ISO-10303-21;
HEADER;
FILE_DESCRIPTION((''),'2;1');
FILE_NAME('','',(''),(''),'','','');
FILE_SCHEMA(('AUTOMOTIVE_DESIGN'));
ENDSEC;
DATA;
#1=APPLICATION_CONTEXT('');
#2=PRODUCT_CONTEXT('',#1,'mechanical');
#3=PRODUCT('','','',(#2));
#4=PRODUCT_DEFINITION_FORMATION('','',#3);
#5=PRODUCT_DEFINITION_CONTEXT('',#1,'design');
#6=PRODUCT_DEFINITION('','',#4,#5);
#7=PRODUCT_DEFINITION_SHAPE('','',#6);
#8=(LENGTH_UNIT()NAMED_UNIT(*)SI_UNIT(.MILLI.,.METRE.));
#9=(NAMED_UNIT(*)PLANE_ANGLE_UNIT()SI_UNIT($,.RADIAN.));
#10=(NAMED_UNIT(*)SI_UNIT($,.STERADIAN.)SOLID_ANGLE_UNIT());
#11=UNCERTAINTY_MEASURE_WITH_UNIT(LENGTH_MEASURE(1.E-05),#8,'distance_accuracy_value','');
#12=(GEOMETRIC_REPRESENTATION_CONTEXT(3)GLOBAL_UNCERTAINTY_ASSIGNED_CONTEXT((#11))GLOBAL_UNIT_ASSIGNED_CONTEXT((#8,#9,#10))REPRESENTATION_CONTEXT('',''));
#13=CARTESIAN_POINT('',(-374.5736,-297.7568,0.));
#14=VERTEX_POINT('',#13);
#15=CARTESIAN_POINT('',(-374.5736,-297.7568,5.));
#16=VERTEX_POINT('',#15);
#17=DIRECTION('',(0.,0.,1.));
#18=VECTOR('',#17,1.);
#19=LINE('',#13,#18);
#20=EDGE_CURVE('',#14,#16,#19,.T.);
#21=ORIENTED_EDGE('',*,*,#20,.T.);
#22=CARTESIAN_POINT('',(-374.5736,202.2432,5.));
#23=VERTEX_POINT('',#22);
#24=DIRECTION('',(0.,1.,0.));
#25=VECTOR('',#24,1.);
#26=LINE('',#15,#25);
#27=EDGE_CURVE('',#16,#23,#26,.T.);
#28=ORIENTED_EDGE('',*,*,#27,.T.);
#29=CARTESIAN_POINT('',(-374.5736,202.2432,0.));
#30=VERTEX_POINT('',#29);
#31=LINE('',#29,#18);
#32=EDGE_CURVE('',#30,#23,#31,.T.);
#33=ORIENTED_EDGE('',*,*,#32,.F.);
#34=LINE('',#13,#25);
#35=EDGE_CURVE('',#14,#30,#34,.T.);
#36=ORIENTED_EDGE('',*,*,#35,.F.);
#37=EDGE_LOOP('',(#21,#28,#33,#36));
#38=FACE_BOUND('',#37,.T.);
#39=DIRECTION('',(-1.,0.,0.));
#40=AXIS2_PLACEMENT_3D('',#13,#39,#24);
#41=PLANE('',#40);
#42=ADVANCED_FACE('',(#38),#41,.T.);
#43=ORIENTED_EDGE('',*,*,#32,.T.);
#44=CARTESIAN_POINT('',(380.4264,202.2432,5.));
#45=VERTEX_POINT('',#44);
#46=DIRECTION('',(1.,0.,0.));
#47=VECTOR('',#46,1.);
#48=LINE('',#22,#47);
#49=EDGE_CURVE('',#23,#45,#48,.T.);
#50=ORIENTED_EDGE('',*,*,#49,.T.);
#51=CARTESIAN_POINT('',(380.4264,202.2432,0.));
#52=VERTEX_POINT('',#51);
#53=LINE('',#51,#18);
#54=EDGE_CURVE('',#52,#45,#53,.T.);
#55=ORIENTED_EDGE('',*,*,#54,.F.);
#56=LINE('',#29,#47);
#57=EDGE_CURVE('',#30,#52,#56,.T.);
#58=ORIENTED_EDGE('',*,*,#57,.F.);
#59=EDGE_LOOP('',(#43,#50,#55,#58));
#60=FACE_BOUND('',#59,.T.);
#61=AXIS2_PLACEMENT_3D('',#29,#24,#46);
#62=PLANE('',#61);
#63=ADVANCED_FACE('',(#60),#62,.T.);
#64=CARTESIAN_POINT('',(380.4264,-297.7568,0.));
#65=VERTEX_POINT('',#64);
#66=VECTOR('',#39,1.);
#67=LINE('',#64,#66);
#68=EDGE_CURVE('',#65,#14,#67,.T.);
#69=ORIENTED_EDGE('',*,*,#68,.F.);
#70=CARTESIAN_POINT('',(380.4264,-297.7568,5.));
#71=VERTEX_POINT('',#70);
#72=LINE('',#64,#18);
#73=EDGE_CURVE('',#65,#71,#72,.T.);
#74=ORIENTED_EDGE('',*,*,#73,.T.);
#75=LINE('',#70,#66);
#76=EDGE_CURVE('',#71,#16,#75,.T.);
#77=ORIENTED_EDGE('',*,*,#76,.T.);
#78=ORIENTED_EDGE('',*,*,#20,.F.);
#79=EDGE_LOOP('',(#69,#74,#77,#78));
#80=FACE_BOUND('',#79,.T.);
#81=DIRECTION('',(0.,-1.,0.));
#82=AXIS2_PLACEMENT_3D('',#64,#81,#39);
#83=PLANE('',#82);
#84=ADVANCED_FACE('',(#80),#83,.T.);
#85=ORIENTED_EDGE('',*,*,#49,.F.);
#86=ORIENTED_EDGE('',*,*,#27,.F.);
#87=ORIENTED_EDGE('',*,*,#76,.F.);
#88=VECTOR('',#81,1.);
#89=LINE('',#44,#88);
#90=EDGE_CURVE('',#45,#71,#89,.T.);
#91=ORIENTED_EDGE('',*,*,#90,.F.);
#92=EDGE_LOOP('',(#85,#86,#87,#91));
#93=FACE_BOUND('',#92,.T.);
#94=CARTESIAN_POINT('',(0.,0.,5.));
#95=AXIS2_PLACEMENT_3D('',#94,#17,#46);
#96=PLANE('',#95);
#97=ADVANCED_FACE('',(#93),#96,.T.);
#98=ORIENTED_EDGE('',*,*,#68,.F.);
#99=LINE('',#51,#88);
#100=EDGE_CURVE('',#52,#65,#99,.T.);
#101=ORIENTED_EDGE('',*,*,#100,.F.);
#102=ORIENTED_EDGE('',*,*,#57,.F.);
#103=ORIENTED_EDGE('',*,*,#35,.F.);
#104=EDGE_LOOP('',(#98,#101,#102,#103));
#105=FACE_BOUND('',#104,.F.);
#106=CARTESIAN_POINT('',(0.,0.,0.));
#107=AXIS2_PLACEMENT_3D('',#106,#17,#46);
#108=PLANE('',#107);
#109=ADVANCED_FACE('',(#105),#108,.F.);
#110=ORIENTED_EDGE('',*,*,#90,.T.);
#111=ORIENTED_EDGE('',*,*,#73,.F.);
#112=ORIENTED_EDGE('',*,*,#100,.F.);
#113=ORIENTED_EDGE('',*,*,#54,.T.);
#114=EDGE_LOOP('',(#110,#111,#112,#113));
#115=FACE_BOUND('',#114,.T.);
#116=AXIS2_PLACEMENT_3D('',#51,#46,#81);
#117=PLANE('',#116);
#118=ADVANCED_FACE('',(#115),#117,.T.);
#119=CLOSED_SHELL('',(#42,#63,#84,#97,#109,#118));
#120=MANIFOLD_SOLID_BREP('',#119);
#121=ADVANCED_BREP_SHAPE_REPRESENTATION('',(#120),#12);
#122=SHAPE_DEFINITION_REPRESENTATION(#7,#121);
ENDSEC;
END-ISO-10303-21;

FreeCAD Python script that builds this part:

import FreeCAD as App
import Part
import Sketcher

V = App.Vector
Q = App.Units.Quantity


def add_polygon(sketch, points):
    """Adds a closed chain of lines whose ends are joined by coincident constraints."""
    first, n = sketch.GeometryCount, len(points)
    for a, b in zip(points, points[1:] + points[:1]):
        sketch.addGeometry(Part.LineSegment(App.Vector(*a, 0), App.Vector(*b, 0)), False)
    for i in range(n):
        sketch.addConstraint(Sketcher.Constraint("Coincident", first + i, 2, first + (i + 1) % n, 1))

doc = App.newDocument("Part")
params = doc.addObject("Spreadsheet::Sheet", "Params")
for row, (alias, value) in enumerate([
    ("sketch1_width", "755 mm"),
    ("sketch1_height", "500 mm"),
    ("pad1_length", "5 mm"),
], start=1):
    params.set(f"A{row}", alias)
    params.set(f"B{row}", "=" + value)
    params.setAlias(f"B{row}", alias)

body = doc.addObject("PartDesign::Body", "Body")

# Sketch on XY plane
sketch1 = doc.addObject("Sketcher::SketchObject", "Sketch")
body.addObject(sketch1)
sketch1.AttachmentSupport = (doc.XY_Plane, [""])
sketch1.MapMode = "FlatFace"
add_polygon(sketch1, [(380, 202), (-375, 202), (-375, -298), (380, -298)])  # lines 0-3
sketch1.addConstraint([
    Sketcher.Constraint("Horizontal", 0),
    Sketcher.Constraint("Vertical", 1),
    Sketcher.Constraint("Horizontal", 2),
    Sketcher.Constraint("Vertical", 3),
    Sketcher.Constraint("DistanceX", 0, 2, 0, 1, Q("755 mm")),
    Sketcher.Constraint("DistanceY", 1, 2, 1, 1, Q("500 mm")),
    Sketcher.Constraint("DistanceX", 0, 2, -1, 1, Q("374.5736 mm")),
    Sketcher.Constraint("DistanceY", -1, 1, 0, 2, Q("202.2432 mm")),
])
sketch1.setExpression("Constraints[8]", "Params.sketch1_width")
sketch1.setExpression("Constraints[9]", "Params.sketch1_height")
pad1 = doc.addObject("PartDesign::Pad", "Pad")
body.addObject(pad1)
pad1.Profile = sketch1
pad1.setExpression("Length", "Params.pad1_length")

doc.recompute()
